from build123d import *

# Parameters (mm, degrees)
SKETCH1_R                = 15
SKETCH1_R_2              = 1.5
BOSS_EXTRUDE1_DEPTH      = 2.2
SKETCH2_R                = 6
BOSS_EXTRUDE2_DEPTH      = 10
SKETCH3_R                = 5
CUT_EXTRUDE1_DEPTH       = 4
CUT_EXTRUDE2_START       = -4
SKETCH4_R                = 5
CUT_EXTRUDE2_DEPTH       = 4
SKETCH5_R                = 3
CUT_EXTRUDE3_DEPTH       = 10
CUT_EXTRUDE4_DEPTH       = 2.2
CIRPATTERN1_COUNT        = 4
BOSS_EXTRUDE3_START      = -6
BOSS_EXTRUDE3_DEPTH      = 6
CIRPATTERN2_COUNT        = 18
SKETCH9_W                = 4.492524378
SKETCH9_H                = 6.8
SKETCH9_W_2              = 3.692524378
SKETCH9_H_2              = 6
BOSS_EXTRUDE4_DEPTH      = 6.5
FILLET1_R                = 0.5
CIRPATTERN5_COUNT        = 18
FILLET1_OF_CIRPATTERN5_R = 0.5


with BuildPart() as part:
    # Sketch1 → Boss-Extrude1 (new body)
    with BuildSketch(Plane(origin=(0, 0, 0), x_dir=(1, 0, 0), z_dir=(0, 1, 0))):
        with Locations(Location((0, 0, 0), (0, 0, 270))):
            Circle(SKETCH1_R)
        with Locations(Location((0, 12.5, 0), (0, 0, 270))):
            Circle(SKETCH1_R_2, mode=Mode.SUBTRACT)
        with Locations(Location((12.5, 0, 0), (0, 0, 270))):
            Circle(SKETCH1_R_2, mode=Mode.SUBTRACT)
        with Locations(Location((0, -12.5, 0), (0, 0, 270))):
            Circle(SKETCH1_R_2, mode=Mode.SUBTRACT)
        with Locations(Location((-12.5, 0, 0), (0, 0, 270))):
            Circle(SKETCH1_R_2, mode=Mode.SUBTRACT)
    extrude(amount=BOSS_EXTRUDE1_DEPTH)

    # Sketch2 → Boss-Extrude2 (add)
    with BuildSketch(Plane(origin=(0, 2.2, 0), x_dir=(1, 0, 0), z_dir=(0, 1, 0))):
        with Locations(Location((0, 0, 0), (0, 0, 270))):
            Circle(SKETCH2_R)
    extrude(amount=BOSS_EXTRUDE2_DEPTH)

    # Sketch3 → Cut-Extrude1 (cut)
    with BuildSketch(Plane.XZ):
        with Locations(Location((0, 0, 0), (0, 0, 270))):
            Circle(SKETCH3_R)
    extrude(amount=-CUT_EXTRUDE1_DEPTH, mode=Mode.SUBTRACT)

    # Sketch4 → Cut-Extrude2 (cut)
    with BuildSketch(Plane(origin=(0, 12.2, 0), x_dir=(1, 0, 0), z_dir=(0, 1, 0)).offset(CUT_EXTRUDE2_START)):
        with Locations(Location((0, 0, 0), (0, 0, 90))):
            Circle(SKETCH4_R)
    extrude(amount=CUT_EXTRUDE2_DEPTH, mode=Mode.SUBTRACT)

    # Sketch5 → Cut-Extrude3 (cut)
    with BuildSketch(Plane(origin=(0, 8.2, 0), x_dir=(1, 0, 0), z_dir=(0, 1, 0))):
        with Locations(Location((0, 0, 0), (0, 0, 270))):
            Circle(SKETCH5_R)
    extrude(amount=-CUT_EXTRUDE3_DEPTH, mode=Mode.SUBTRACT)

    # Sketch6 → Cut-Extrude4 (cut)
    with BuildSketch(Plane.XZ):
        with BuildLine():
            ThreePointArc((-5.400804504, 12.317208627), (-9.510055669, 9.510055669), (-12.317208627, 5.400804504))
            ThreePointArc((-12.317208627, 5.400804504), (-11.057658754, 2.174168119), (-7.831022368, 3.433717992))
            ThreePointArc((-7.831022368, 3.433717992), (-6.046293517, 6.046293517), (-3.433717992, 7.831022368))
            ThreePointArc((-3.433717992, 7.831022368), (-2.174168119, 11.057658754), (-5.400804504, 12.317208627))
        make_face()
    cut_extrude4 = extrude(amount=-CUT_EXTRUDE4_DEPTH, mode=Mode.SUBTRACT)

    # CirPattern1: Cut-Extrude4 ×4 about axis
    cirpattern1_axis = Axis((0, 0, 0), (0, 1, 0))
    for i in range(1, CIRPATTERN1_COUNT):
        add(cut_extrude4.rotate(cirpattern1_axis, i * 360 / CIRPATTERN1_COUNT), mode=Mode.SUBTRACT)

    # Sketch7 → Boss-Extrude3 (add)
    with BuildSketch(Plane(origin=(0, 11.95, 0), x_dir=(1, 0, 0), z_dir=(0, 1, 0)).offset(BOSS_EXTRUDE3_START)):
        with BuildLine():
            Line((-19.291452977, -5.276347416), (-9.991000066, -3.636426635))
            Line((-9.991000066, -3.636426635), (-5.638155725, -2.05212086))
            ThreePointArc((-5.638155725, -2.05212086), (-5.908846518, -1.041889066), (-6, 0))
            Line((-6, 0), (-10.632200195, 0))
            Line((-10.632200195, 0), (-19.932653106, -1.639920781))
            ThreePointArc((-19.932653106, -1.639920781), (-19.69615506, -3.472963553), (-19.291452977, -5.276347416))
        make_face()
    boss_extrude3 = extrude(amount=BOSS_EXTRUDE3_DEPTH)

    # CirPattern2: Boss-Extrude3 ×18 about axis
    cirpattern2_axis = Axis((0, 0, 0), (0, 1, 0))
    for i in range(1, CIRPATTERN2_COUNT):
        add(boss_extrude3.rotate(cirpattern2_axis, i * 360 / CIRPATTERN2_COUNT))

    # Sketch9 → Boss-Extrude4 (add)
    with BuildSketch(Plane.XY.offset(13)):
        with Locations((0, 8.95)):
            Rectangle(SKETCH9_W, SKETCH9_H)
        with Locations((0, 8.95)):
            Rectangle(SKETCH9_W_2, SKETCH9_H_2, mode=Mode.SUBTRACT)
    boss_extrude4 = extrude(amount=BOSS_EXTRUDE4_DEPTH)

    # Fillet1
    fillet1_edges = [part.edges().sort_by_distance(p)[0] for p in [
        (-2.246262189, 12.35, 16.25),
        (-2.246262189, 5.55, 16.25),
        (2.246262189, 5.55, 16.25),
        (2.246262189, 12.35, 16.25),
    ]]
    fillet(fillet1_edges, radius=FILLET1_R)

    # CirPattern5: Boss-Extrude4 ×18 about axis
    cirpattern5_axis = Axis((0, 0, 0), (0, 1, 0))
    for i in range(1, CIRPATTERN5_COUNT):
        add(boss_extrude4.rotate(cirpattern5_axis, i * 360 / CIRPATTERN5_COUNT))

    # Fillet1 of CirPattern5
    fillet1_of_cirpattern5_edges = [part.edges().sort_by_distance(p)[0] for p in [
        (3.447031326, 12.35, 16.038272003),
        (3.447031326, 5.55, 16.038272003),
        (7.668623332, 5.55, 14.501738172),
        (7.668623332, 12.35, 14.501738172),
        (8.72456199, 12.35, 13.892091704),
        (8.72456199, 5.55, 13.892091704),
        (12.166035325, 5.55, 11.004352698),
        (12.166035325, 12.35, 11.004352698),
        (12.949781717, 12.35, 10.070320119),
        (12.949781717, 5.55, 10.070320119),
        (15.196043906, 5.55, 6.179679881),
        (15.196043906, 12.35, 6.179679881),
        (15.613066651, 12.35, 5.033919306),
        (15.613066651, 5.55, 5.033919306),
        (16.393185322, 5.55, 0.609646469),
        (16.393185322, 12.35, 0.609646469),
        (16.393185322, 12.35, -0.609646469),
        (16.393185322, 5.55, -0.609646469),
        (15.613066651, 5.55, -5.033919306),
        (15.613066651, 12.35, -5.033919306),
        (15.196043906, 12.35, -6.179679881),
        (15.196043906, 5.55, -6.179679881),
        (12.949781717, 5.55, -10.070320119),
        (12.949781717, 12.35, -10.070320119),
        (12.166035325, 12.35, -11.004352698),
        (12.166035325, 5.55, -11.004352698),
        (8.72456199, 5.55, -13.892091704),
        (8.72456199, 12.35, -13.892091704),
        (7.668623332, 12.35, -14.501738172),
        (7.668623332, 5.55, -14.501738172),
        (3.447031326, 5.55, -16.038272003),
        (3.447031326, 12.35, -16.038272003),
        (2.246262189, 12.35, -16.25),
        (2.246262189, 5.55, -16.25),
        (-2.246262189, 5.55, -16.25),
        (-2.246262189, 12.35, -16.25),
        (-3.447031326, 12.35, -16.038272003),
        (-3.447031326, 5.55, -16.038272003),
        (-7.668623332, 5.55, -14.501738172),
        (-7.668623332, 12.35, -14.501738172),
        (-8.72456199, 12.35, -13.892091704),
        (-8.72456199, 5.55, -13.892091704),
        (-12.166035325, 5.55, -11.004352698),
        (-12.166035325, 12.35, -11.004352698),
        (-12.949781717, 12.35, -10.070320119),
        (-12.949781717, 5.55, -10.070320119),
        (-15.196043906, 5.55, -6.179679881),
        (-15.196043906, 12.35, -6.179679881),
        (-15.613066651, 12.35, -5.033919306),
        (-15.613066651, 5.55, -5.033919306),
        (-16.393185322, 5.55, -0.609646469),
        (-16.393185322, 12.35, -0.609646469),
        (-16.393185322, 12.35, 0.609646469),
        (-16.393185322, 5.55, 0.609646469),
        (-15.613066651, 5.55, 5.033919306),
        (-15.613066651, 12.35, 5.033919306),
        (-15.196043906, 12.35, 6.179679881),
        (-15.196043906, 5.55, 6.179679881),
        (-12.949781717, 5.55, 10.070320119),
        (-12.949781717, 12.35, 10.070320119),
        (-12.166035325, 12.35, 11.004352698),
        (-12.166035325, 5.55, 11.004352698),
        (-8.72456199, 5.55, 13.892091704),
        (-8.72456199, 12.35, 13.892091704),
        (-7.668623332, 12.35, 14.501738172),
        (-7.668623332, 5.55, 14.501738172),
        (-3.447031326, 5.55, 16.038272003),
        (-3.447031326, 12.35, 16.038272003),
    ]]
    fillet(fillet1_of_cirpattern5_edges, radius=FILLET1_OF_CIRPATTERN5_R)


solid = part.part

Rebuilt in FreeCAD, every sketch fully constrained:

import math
import FreeCAD as App
import Part
import Sketcher

V = App.Vector
Q = App.Units.Quantity


def edges_at(feature, points):
    """Names of the edges that pass closest to the given points."""
    edges = feature.Shape.Edges
    near = lambda p: min(range(len(edges)), key=lambda i: edges[i].distToShape(Part.Vertex(*p))[0])
    return sorted({f"Edge{near(p) + 1}" for p in points})

doc = App.newDocument("Part")
body = doc.addObject("PartDesign::Body", "Body")

sketch1 = body.newObject("Sketcher::SketchObject", "Sketch")
sketch1.AttachmentSupport = (doc.getObject("XZ_Plane"), [""])
sketch1.MapMode = "FlatFace"
sketch1.addGeometry(Part.Circle(V(0, 0, 0), V(0, 0, 1), 15), False)
sketch1.addGeometry(Part.Circle(V(0, -12.5, 0), V(0, 0, 1), 1.5), False)
sketch1.addGeometry(Part.Circle(V(-12.5, 0, 0), V(0, 0, 1), 1.5), False)
sketch1.addGeometry(Part.Circle(V(12.5, 0, 0), V(0, 0, 1), 1.5), False)
sketch1.addGeometry(Part.Circle(V(0, 12.5, 0), V(0, 0, 1), 1.5), False)
sketch1.addConstraint(Sketcher.Constraint("Coincident", 0, 3, -1, 1))
sketch1.addConstraint(Sketcher.Constraint("Equal", 1, 2))
sketch1.addConstraint(Sketcher.Constraint("Equal", 2, 3))
sketch1.addConstraint(Sketcher.Constraint("Equal", 3, 4))
sketch1.addConstraint(Sketcher.Constraint("Symmetric", 2, 3, 3, 3, -1, 1))
sketch1.addConstraint(Sketcher.Constraint("Symmetric", 1, 3, 4, 3, -1, 1))
sketch1.addConstraint(Sketcher.Constraint("PointOnObject", 1, 3, -2))
sketch1.addConstraint(Sketcher.Constraint("PointOnObject", 2, 3, -1))
sketch1.addConstraint(Sketcher.Constraint("Diameter", 0, 30.0))
sketch1.addConstraint(Sketcher.Constraint("Diameter", 1, 3.0))
sketch1.addConstraint(Sketcher.Constraint("DistanceX", 2, 3, 3, 3, 25.0))
sketch1.addConstraint(Sketcher.Constraint("DistanceY", 1, 3, 4, 3, 25.0))
pad1 = body.newObject("PartDesign::Pad", "Pad")
pad1.Profile = sketch1
pad1.Length = 2.2
pad1.Reversed = True

sketch2 = body.newObject("Sketcher::SketchObject", "Sketch001")
sketch2.AttachmentSupport = (doc.getObject("XZ_Plane"), [""])
sketch2.MapMode = "FlatFace"
sketch2.AttachmentOffset = App.Placement(V(0, 0, -2.2), App.Rotation())
sketch2.addGeometry(Part.Circle(V(0, 0, 0), V(0, 0, 1), 6), False)
sketch2.addConstraint(Sketcher.Constraint("Coincident", 0, 3, -1, 1))
sketch2.addConstraint(Sketcher.Constraint("Diameter", 0, 12.0))
pad2 = body.newObject("PartDesign::Pad", "Pad001")
pad2.Profile = sketch2
pad2.Length = 10
pad2.Reversed = True

sketch3 = body.newObject("Sketcher::SketchObject", "Sketch002")
sketch3.AttachmentSupport = (doc.getObject("XZ_Plane"), [""])
sketch3.MapMode = "FlatFace"
sketch3.addGeometry(Part.Circle(V(0, 0, 0), V(0, 0, 1), 5), False)
sketch3.addConstraint(Sketcher.Constraint("Coincident", 0, 3, -1, 1))
sketch3.addConstraint(Sketcher.Constraint("Diameter", 0, 10.0))
pocket1 = body.newObject("PartDesign::Pocket", "Pocket")
pocket1.Profile = sketch3
pocket1.Length = 4

sketch4 = body.newObject("Sketcher::SketchObject", "Sketch003")
sketch4.AttachmentSupport = (doc.getObject("XZ_Plane"), [""])
sketch4.MapMode = "FlatFace"
sketch4.AttachmentOffset = App.Placement(V(0, 0, -8.2), App.Rotation())
sketch4.addGeometry(Part.Circle(V(0, 0, 0), V(0, 0, 1), 5), False)
sketch4.addConstraint(Sketcher.Constraint("Coincident", 0, 3, -1, 1))
sketch4.addConstraint(Sketcher.Constraint("Diameter", 0, 10.0))
pocket2 = body.newObject("PartDesign::Pocket", "Pocket001")
pocket2.Profile = sketch4
pocket2.Length = 4

sketch5 = body.newObject("Sketcher::SketchObject", "Sketch004")
sketch5.AttachmentSupport = (doc.getObject("XZ_Plane"), [""])
sketch5.MapMode = "FlatFace"
sketch5.AttachmentOffset = App.Placement(V(0, 0, -8.2), App.Rotation())
sketch5.addGeometry(Part.Circle(V(0, 0, 0), V(0, 0, 1), 3), False)
sketch5.addConstraint(Sketcher.Constraint("Coincident", 0, 3, -1, 1))
sketch5.addConstraint(Sketcher.Constraint("Diameter", 0, 6.0))
pocket3 = body.newObject("PartDesign::Pocket", "Pocket002")
pocket3.Profile = sketch5
pocket3.Length = 10
pocket3.Reversed = True

sketch6 = body.newObject("Sketcher::SketchObject", "Sketch005")
sketch6.AttachmentSupport = (doc.getObject("XZ_Plane"), [""])
sketch6.MapMode = "FlatFace"
sketch6.addGeometry(Part.ArcOfCircle(Part.Circle(V(0, 0, 0), V(0, 0, 1), 13.44925), math.radians(113.676314), math.radians(156.323686)), False)
sketch6.addGeometry(Part.ArcOfCircle(Part.Circle(V(-10.074115, 4.417261, 0), V(0, 0, 1), 2.44925), math.radians(156.323686), math.radians(336.323686)), False)
sketch6.addGeometry(Part.ArcOfCircle(Part.Circle(V(0, 0, 0), V(0, 0, 1), 8.55075), math.radians(113.676314), math.radians(156.323686)), False)
sketch6.addGeometry(Part.ArcOfCircle(Part.Circle(V(-4.417261, 10.074115, 0), V(0, 0, 1), 2.44925), math.radians(-66.323686), math.radians(113.676314)), False)
sketch6.addConstraint(Sketcher.Constraint("Tangent", 0, 2, 1, 1))
sketch6.addConstraint(Sketcher.Constraint("Tangent", 1, 2, 2, 2))
sketch6.addConstraint(Sketcher.Constraint("Tangent", 2, 1, 3, 1))
sketch6.addConstraint(Sketcher.Constraint("Tangent", 3, 2, 0, 1))
sketch6.addConstraint(Sketcher.Constraint("Coincident", 0, 3, -1, 1))
sketch6.addConstraint(Sketcher.Constraint("Coincident", 2, 3, -1, 1))
sketch6.addConstraint(Sketcher.Constraint("Radius", 0, 13.44925))
sketch6.addConstraint(Sketcher.Constraint("Radius", 1, 2.44925))
sketch6.addConstraint(Sketcher.Constraint("DistanceY", -1, 1, 1, 3, 4.417261))
sketch6.addConstraint(Sketcher.Constraint("DistanceX", 3, 3, -1, 1, 4.417261))
pocket4 = body.newObject("PartDesign::Pocket", "Pocket003")
pocket4.Profile = sketch6
pocket4.Length = 2.2
doc.recompute()

polarpattern = body.newObject("PartDesign::PolarPattern", "PolarPattern")
polarpattern.Originals = [pocket4]
polarpattern.Axis = (doc.getObject("Y_Axis"), [""])
polarpattern.Angle = 360
polarpattern.Occurrences = 4
body.Tip = polarpattern

sketch7 = body.newObject("Sketcher::SketchObject", "Sketch006")
sketch7.AttachmentSupport = (doc.getObject("XZ_Plane"), [""])
sketch7.MapMode = "FlatFace"
sketch7.AttachmentOffset = App.Placement(V(0, 0, -5.95), App.Rotation())
sketch7.addGeometry(Part.LineSegment(V(-19.291453, 5.276347, 0), V(-9.991, 3.636427, 0)), False)
sketch7.addGeometry(Part.LineSegment(V(-9.991, 3.636427, 0), V(-5.638156, 2.052121, 0)), False)
sketch7.addGeometry(Part.ArcOfCircle(Part.Circle(V(0, 0, 0), V(0, 0, 1), 6), math.radians(160), math.radians(180)), False)
sketch7.addGeometry(Part.LineSegment(V(-6, 0, 0), V(-10.6322, 0, 0)), False)
sketch7.addGeometry(Part.LineSegment(V(-10.6322, 0, 0), V(-19.932653, 1.639921, 0)), False)
sketch7.addGeometry(Part.ArcOfCircle(Part.Circle(V(0, 0, 0), V(0, 0, 1), 20), math.radians(164.703307), math.radians(175.296693)), False)
sketch7.addConstraint(Sketcher.Constraint("Coincident", 0, 2, 1, 1))
sketch7.addConstraint(Sketcher.Constraint("Coincident", 1, 2, 2, 1))
sketch7.addConstraint(Sketcher.Constraint("Coincident", 2, 2, 3, 1))
sketch7.addConstraint(Sketcher.Constraint("Coincident", 3, 2, 4, 1))
sketch7.addConstraint(Sketcher.Constraint("Coincident", 4, 2, 5, 2))
sketch7.addConstraint(Sketcher.Constraint("Coincident", 5, 1, 0, 1))
sketch7.addConstraint(Sketcher.Constraint("Horizontal", 3))
sketch7.addConstraint(Sketcher.Constraint("Coincident", 2, 3, -1, 1))
sketch7.addConstraint(Sketcher.Constraint("Coincident", 5, 3, -1, 1))
sketch7.addConstraint(Sketcher.Constraint("PointOnObject", 2, 2, -1))
sketch7.addConstraint(Sketcher.Constraint("Parallel", 0, 4))
sketch7.addConstraint(Sketcher.Constraint("Equal", 0, 4))
sketch7.addConstraint(Sketcher.Constraint("Radius", 2, 6.0))
sketch7.addConstraint(Sketcher.Constraint("Radius", 5, 20.0))
sketch7.addConstraint(Sketcher.Constraint("Angle", 0, Q("-10 deg")))
sketch7.addConstraint(Sketcher.Constraint("Angle", 1, Q("-20 deg")))
sketch7.addConstraint(Sketcher.Constraint("DistanceX", 3, 2, 3, 1, 4.6322))
sketch7.addConstraint(Sketcher.Constraint("DistanceX", 0, 2, -1, 1, 9.991))
pad3 = body.newObject("PartDesign::Pad", "Pad002")
pad3.Profile = sketch7
pad3.Length = 6
pad3.Reversed = True
doc.recompute()

polarpattern2 = body.newObject("PartDesign::PolarPattern", "PolarPattern001")
polarpattern2.Originals = [pad3]
polarpattern2.Axis = (doc.getObject("Y_Axis"), [""])
polarpattern2.Angle = 360
polarpattern2.Occurrences = 18
body.Tip = polarpattern2

sketch8 = body.newObject("Sketcher::SketchObject", "Sketch007")
sketch8.AttachmentSupport = (doc.getObject("XY_Plane"), [""])
sketch8.MapMode = "FlatFace"
sketch8.AttachmentOffset = App.Placement(V(0, 0, 13), App.Rotation())
sketch8.addGeometry(Part.LineSegment(V(-2.246262, 12.35, 0), V(-2.246262, 5.55, 0)), False)
sketch8.addGeometry(Part.LineSegment(V(-2.246262, 5.55, 0), V(2.246262, 5.55, 0)), False)
sketch8.addGeometry(Part.LineSegment(V(2.246262, 5.55, 0), V(2.246262, 12.35, 0)), False)
sketch8.addGeometry(Part.LineSegment(V(2.246262, 12.35, 0), V(-2.246262, 12.35, 0)), False)
sketch8.addGeometry(Part.LineSegment(V(1.846262, 5.95, 0), V(-1.846262, 5.95, 0)), False)
sketch8.addGeometry(Part.LineSegment(V(-1.846262, 5.95, 0), V(-1.846262, 11.95, 0)), False)
sketch8.addGeometry(Part.LineSegment(V(-1.846262, 11.95, 0), V(1.846262, 11.95, 0)), False)
sketch8.addGeometry(Part.LineSegment(V(1.846262, 11.95, 0), V(1.846262, 5.95, 0)), False)
sketch8.addConstraint(Sketcher.Constraint("Coincident", 0, 2, 1, 1))
sketch8.addConstraint(Sketcher.Constraint("Coincident", 1, 2, 2, 1))
sketch8.addConstraint(Sketcher.Constraint("Coincident", 2, 2, 3, 1))
sketch8.addConstraint(Sketcher.Constraint("Coincident", 3, 2, 0, 1))
sketch8.addConstraint(Sketcher.Constraint("Coincident", 4, 2, 5, 1))
sketch8.addConstraint(Sketcher.Constraint("Coincident", 5, 2, 6, 1))
sketch8.addConstraint(Sketcher.Constraint("Coincident", 6, 2, 7, 1))
sketch8.addConstraint(Sketcher.Constraint("Coincident", 7, 2, 4, 1))
sketch8.addConstraint(Sketcher.Constraint("Vertical", 0))
sketch8.addConstraint(Sketcher.Constraint("Horizontal", 1))
sketch8.addConstraint(Sketcher.Constraint("Vertical", 2))
sketch8.addConstraint(Sketcher.Constraint("Horizontal", 3))
sketch8.addConstraint(Sketcher.Constraint("Horizontal", 4))
sketch8.addConstraint(Sketcher.Constraint("Vertical", 5))
sketch8.addConstraint(Sketcher.Constraint("Horizontal", 6))
sketch8.addConstraint(Sketcher.Constraint("Vertical", 7))
sketch8.addConstraint(Sketcher.Constraint("DistanceY", 5, 1, 5, 2, 6.0))
sketch8.addConstraint(Sketcher.Constraint("DistanceY", 0, 2, 0, 1, 6.8))
sketch8.addConstraint(Sketcher.Constraint("DistanceX", 0, 2, 4, 2, 0.4))
sketch8.addConstraint(Sketcher.Constraint("DistanceY", 0, 2, 4, 2, 0.4))
sketch8.addConstraint(Sketcher.Constraint("DistanceX", 6, 2, 2, 2, 0.4))
sketch8.addConstraint(Sketcher.Constraint("DistanceY", -1, 1, 0, 2, 5.55))
sketch8.addConstraint(Sketcher.Constraint("DistanceX", 1, 1, 1, 2, 4.492524))
sketch8.addConstraint(Sketcher.Constraint("DistanceX", 0, 2, -1, 1, 2.246262))
pad4 = body.newObject("PartDesign::Pad", "Pad003")
pad4.Profile = sketch8
pad4.Length = 6.5
doc.recompute()

fillet = body.newObject("PartDesign::Fillet", "Fillet")
fillet.Base = (pad4, edges_at(pad4, [
    (-2.246, 12.35, 16.25),
    (-2.246, 5.55, 16.25),
    (2.246, 5.55, 16.25),
    (2.246, 12.35, 16.25),
]))
fillet.Radius = 0.5
doc.recompute()

polarpattern3 = body.newObject("PartDesign::PolarPattern", "PolarPattern002")
polarpattern3.Originals = [pad4]
polarpattern3.Axis = (doc.getObject("Y_Axis"), [""])
polarpattern3.Angle = 360
polarpattern3.Occurrences = 18
body.Tip = polarpattern3
doc.recompute()

fillet2 = body.newObject("PartDesign::Fillet", "Fillet001")
fillet2.Base = (polarpattern3, edges_at(polarpattern3, [
    (3.447, 12.35, 16.038),
    (3.447, 5.55, 16.038),
    (7.669, 5.55, 14.502),
    (7.669, 12.35, 14.502),
    (8.725, 12.35, 13.892),
    (8.725, 5.55, 13.892),
    (12.166, 5.55, 11.004),
    (12.166, 12.35, 11.004),
    (12.95, 12.35, 10.07),
    (12.95, 5.55, 10.07),
    (15.196, 5.55, 6.18),
    (15.196, 12.35, 6.18),
    (15.613, 12.35, 5.034),
    (15.613, 5.55, 5.034),
    (16.393, 5.55, 0.61),
    (16.393, 12.35, 0.61),
    (16.393, 12.35, -0.61),
    (16.393, 5.55, -0.61),
    (15.613, 5.55, -5.034),
    (15.613, 12.35, -5.034),
    (15.196, 12.35, -6.18),
    (15.196, 5.55, -6.18),
    (12.95, 5.55, -10.07),
    (12.95, 12.35, -10.07),
    (12.166, 12.35, -11.004),
    (12.166, 5.55, -11.004),
    (8.725, 5.55, -13.892),
    (8.725, 12.35, -13.892),
    (7.669, 12.35, -14.502),
    (7.669, 5.55, -14.502),
    (3.447, 5.55, -16.038),
    (3.447, 12.35, -16.038),
    (2.246, 12.35, -16.25),
    (2.246, 5.55, -16.25),
    (-2.246, 5.55, -16.25),
    (-2.246, 12.35, -16.25),
    (-3.447, 12.35, -16.038),
    (-3.447, 5.55, -16.038),
    (-7.669, 5.55, -14.502),
    (-7.669, 12.35, -14.502),
    (-8.725, 12.35, -13.892),
    (-8.725, 5.55, -13.892),
    (-12.166, 5.55, -11.004),
    (-12.166, 12.35, -11.004),
    (-12.95, 12.35, -10.07),
    (-12.95, 5.55, -10.07),
    (-15.196, 5.55, -6.18),
    (-15.196, 12.35, -6.18),
    (-15.613, 12.35, -5.034),
    (-15.613, 5.55, -5.034),
    (-16.393, 5.55, -0.61),
    (-16.393, 12.35, -0.61),
    (-16.393, 12.35, 0.61),
    (-16.393, 5.55, 0.61),
    (-15.613, 5.55, 5.034),
    (-15.613, 12.35, 5.034),
    (-15.196, 12.35, 6.18),
    (-15.196, 5.55, 6.18),
    (-12.95, 5.55, 10.07),
    (-12.95, 12.35, 10.07),
    (-12.166, 12.35, 11.004),
    (-12.166, 5.55, 11.004),
    (-8.725, 5.55, 13.892),
    (-8.725, 12.35, 13.892),
    (-7.669, 12.35, 14.502),
    (-7.669, 5.55, 14.502),
    (-3.447, 5.55, 16.038),
    (-3.447, 12.35, 16.038),
]))
fillet2.Radius = 0.5

doc.recompute()
